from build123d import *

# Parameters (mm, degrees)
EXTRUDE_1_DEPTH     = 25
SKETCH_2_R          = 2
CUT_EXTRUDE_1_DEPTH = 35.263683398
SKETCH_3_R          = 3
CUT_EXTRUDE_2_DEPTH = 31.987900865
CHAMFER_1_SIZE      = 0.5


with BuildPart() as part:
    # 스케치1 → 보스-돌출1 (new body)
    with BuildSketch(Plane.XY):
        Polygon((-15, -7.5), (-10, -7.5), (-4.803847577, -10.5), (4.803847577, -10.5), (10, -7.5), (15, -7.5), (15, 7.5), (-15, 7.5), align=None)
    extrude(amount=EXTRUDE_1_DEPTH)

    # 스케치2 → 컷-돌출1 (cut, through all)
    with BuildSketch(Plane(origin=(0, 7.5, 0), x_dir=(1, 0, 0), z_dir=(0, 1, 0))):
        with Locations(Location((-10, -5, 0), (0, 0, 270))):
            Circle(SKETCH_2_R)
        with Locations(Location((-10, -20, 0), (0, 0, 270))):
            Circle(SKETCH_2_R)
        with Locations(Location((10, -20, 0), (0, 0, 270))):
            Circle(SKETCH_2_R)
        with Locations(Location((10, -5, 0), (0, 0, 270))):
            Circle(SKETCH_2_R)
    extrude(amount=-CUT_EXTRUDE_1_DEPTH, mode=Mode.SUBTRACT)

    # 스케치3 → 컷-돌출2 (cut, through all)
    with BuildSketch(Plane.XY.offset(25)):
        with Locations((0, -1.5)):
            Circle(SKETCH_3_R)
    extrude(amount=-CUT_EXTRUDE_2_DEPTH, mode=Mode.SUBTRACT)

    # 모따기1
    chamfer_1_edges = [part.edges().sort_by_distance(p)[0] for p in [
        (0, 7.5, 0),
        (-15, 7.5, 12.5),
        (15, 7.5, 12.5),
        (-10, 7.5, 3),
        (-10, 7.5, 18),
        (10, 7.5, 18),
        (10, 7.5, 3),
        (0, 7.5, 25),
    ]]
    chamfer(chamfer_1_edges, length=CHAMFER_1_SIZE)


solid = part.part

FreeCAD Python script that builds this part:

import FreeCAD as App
import Part
import Sketcher

V = App.Vector
Q = App.Units.Quantity


def edges_at(feature, points):
    """Names of the edges that pass closest to the given points."""
    edges = feature.Shape.Edges
    near = lambda p: min(range(len(edges)), key=lambda i: edges[i].distToShape(Part.Vertex(*p))[0])
    return sorted({f"Edge{near(p) + 1}" for p in points})

doc = App.newDocument("Part")
body = doc.addObject("PartDesign::Body", "Body")

sketch1 = body.newObject("Sketcher::SketchObject", "Sketch")
sketch1.AttachmentSupport = (doc.getObject("XY_Plane"), [""])
sketch1.MapMode = "FlatFace"
sketch1.addGeometry(Part.LineSegment(V(-15, -8, 0), V(-10, -8, 0)), False)
sketch1.addGeometry(Part.LineSegment(V(-10, -8, 0), V(-5, -10, 0)), False)
sketch1.addGeometry(Part.LineSegment(V(-5, -10, 0), V(5, -10, 0)), False)
sketch1.addGeometry(Part.LineSegment(V(5, -10, 0), V(10, -8, 0)), False)
sketch1.addGeometry(Part.LineSegment(V(10, -8, 0), V(15, -8, 0)), False)
sketch1.addGeometry(Part.LineSegment(V(15, -8, 0), V(15, 8, 0)), False)
sketch1.addGeometry(Part.LineSegment(V(15, 8, 0), V(-15, 8, 0)), False)
sketch1.addGeometry(Part.LineSegment(V(-15, 8, 0), V(-15, -8, 0)), False)
sketch1.addConstraint(Sketcher.Constraint("Coincident", 0, 2, 1, 1))
sketch1.addConstraint(Sketcher.Constraint("Coincident", 1, 2, 2, 1))
sketch1.addConstraint(Sketcher.Constraint("Coincident", 2, 2, 3, 1))
sketch1.addConstraint(Sketcher.Constraint("Coincident", 3, 2, 4, 1))
sketch1.addConstraint(Sketcher.Constraint("Coincident", 4, 2, 5, 1))
sketch1.addConstraint(Sketcher.Constraint("Coincident", 5, 2, 6, 1))
sketch1.addConstraint(Sketcher.Constraint("Coincident", 6, 2, 7, 1))
sketch1.addConstraint(Sketcher.Constraint("Coincident", 7, 2, 0, 1))
sketch1.addConstraint(Sketcher.Constraint("Horizontal", 0))
sketch1.addConstraint(Sketcher.Constraint("Horizontal", 2))
sketch1.addConstraint(Sketcher.Constraint("Horizontal", 4))
sketch1.addConstraint(Sketcher.Constraint("Vertical", 5))
sketch1.addConstraint(Sketcher.Constraint("Horizontal", 6))
sketch1.addConstraint(Sketcher.Constraint("Vertical", 7))
sketch1.addConstraint(Sketcher.Constraint("Symmetric", 4, 2, 6, 2, -1, 1))
sketch1.addConstraint(Sketcher.Constraint("Symmetric", 0, 2, 3, 2, -2))
sketch1.addConstraint(Sketcher.Constraint("Equal", 1, 3))
sketch1.addConstraint(Sketcher.Constraint("DistanceX", 0, 1, 0, 2, Q("5 mm")))
sketch1.addConstraint(Sketcher.Constraint("DistanceX", 6, 2, 6, 1, Q("30 mm")))
sketch1.addConstraint(Sketcher.Constraint("DistanceY", 5, 1, 5, 2, Q("15 mm")))
sketch1.addConstraint(Sketcher.Constraint("Angle", 1, Q("-30 deg")))
sketch1.addConstraint(Sketcher.Constraint("Distance", 1, Q("6 mm")))
pad1 = body.newObject("PartDesign::Pad", "Pad")
pad1.Profile = sketch1
pad1.Length = 25

sketch2 = body.newObject("Sketcher::SketchObject", "Sketch001")
sketch2.AttachmentSupport = (doc.getObject("XZ_Plane"), [""])
sketch2.MapMode = "FlatFace"
sketch2.AttachmentOffset = App.Placement(V(0, 0, -7.5), App.Rotation())
sketch2.addGeometry(Part.Circle(V(-10, 5, 0), V(0, 0, 1), 2), False)
sketch2.addGeometry(Part.Circle(V(-10, 20, 0), V(0, 0, 1), 2), False)
sketch2.addGeometry(Part.Circle(V(10, 20, 0), V(0, 0, 1), 2), False)
sketch2.addGeometry(Part.Circle(V(10, 5, 0), V(0, 0, 1), 2), False)
sketch2.addConstraint(Sketcher.Constraint("Equal", 0, 1))
sketch2.addConstraint(Sketcher.Constraint("Equal", 1, 2))
sketch2.addConstraint(Sketcher.Constraint("Equal", 2, 3))
sketch2.addConstraint(Sketcher.Constraint("Symmetric", 1, 3, 2, 3, -2))
sketch2.addConstraint(Sketcher.Constraint("Symmetric", 0, 3, 3, 3, -2))
sketch2.addConstraint(Sketcher.Constraint("Vertical", 0, 3, 1, 3))
sketch2.addConstraint(Sketcher.Constraint("Diameter", 0, Q("4 mm")))
sketch2.addConstraint(Sketcher.Constraint("DistanceX", 0, 3, -1, 1, Q("10 mm")))
sketch2.addConstraint(Sketcher.Constraint("DistanceY", -1, 1, 0, 3, Q("5 mm")))
sketch2.addConstraint(Sketcher.Constraint("DistanceY", -1, 1, 1, 3, Q("20 mm")))
pocket1 = body.newObject("PartDesign::Pocket", "Pocket")
pocket1.Profile = sketch2
pocket1.Type = "ThroughAll"
pocket1.Reversed = True

sketch3 = body.newObject("Sketcher::SketchObject", "Sketch002")
sketch3.AttachmentSupport = (doc.getObject("XY_Plane"), [""])
sketch3.MapMode = "FlatFace"
sketch3.AttachmentOffset = App.Placement(V(0, 0, 25), App.Rotation())
sketch3.addGeometry(Part.Circle(V(0, -1.5, 0), V(0, 0, 1), 3), False)
sketch3.addConstraint(Sketcher.Constraint("PointOnObject", 0, 3, -2))
sketch3.addConstraint(Sketcher.Constraint("Diameter", 0, Q("6 mm")))
sketch3.addConstraint(Sketcher.Constraint("DistanceY", 0, 3, -1, 1, Q("1.5 mm")))
pocket2 = body.newObject("PartDesign::Pocket", "Pocket001")
pocket2.Profile = sketch3
pocket2.Type = "ThroughAll"
doc.recompute()

chamfer = body.newObject("PartDesign::Chamfer", "Chamfer")
chamfer.Base = (pocket2, edges_at(pocket2, [
    (0, 7.5, 0),
    (-15, 7.5, 12.5),
    (15, 7.5, 12.5),
    (-10, 7.5, 3),
    (-10, 7.5, 18),
    (10, 7.5, 18),
    (10, 7.5, 3),
    (0, 7.5, 25),
]))
chamfer.Size = 0.5

doc.recompute()
